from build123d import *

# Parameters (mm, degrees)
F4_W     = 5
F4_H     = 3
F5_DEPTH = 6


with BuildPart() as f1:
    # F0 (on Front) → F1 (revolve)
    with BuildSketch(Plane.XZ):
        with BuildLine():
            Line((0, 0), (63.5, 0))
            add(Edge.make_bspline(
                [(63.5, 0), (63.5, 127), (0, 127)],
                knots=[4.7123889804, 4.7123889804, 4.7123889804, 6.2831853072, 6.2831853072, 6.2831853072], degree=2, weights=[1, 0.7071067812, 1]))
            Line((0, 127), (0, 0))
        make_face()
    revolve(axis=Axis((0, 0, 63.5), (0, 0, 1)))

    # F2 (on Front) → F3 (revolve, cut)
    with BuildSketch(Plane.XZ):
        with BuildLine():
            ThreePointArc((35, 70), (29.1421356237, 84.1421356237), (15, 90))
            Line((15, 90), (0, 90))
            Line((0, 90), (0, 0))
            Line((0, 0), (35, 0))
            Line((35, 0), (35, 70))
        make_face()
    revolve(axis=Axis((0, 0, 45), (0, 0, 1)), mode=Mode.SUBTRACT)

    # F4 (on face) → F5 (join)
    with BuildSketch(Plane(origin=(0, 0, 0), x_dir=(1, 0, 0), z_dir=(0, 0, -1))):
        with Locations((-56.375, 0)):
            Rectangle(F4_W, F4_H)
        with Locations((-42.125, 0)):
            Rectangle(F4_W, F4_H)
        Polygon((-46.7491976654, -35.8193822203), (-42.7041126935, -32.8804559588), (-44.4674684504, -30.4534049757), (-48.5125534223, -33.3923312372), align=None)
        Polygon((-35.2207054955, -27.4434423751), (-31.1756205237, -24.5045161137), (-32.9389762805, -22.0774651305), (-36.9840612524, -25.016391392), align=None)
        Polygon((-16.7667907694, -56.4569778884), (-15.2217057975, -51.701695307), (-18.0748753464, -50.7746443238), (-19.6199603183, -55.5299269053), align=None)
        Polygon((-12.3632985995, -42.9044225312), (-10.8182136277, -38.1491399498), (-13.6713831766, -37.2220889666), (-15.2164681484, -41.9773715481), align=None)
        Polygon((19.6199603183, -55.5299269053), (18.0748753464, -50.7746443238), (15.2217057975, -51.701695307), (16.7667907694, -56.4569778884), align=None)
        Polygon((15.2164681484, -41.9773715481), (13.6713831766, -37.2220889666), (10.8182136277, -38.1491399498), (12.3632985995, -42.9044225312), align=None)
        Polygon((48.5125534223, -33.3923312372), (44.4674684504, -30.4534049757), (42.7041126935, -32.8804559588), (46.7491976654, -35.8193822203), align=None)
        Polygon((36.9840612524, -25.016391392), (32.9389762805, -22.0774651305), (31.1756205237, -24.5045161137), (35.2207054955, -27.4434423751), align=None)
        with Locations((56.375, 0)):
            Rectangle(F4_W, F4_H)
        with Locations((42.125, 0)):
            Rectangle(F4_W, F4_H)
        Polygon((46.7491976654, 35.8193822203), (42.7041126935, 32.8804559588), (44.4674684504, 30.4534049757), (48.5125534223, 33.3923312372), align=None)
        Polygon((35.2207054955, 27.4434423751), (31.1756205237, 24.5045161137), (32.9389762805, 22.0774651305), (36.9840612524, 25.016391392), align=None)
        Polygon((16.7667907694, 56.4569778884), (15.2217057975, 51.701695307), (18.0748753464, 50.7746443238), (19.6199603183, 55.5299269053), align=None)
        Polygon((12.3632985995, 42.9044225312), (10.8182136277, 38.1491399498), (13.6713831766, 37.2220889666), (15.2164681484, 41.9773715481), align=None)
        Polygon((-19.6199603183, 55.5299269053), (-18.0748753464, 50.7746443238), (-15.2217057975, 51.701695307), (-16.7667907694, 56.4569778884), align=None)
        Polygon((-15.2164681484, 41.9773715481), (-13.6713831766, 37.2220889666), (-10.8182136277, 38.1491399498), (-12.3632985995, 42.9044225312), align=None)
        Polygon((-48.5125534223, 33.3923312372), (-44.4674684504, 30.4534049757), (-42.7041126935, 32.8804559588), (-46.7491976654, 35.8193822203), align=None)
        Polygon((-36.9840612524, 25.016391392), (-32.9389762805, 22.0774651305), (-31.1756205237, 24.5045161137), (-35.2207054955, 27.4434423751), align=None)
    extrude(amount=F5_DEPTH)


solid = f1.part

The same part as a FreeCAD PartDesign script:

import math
import FreeCAD as App
import Part
import Sketcher
Q = App.Units.Quantity


def add_polygon(sketch, points):
    """Adds a closed chain of lines whose ends are joined by coincident constraints."""
    first, n = sketch.GeometryCount, len(points)
    for a, b in zip(points, points[1:] + points[:1]):
        sketch.addGeometry(Part.LineSegment(App.Vector(*a, 0), App.Vector(*b, 0)), False)
    for i in range(n):
        sketch.addConstraint(Sketcher.Constraint("Coincident", first + i, 2, first + (i + 1) % n, 1))

doc = App.newDocument("Part")
body = doc.addObject("PartDesign::Body", "Body")

sketch1 = doc.addObject("Sketcher::SketchObject", "Sketch")
body.addObject(sketch1)
sketch1.AttachmentSupport = (doc.XZ_Plane, [""])
sketch1.MapMode = "FlatFace"
sketch1.addGeometry(Part.LineSegment(App.Vector(0, 0, 0), App.Vector(63.5, 0, 0)), False)
sketch1.addGeometry(Part.BSplineCurve([App.Vector(63.5, 0, 0), App.Vector(63.5, 127, 0), App.Vector(0, 127, 0)], [3, 3], [4.71238898, 6.283185307], False, 2, [1, 0.707106781, 1], False), False)
sketch1.addGeometry(Part.LineSegment(App.Vector(0, 127, 0), App.Vector(0, 0, 0)), False)
sketch1.addConstraint(Sketcher.Constraint("Block", 1))
sketch1.addConstraint(Sketcher.Constraint("Coincident", 0, 2, 1, 1))
sketch1.addConstraint(Sketcher.Constraint("Coincident", 1, 2, 2, 1))
sketch1.addConstraint(Sketcher.Constraint("Coincident", 2, 2, 0, 1))
sketch1.addConstraint(Sketcher.Constraint("Horizontal", 0))
sketch1.addConstraint(Sketcher.Constraint("Vertical", 2))
revolution = doc.addObject("PartDesign::Revolution", "Revolution")
body.addObject(revolution)
revolution.Profile = sketch1
revolution.ReferenceAxis = (sketch1, ["V_Axis"])
revolution.Angle = 360

sketch2 = doc.addObject("Sketcher::SketchObject", "Sketch001")
body.addObject(sketch2)
sketch2.AttachmentSupport = (doc.XZ_Plane, [""])
sketch2.MapMode = "FlatFace"
sketch2.addGeometry(Part.ArcOfCircle(Part.Circle(App.Vector(15, 70, 0), App.Vector(0, 0, 1), 20), math.radians(0), math.radians(90)), False)
sketch2.addGeometry(Part.LineSegment(App.Vector(15, 90, 0), App.Vector(0, 90, 0)), False)
sketch2.addGeometry(Part.LineSegment(App.Vector(0, 90, 0), App.Vector(0, 0, 0)), False)
sketch2.addGeometry(Part.LineSegment(App.Vector(0, 0, 0), App.Vector(35, 0, 0)), False)
sketch2.addGeometry(Part.LineSegment(App.Vector(35, 0, 0), App.Vector(35, 70, 0)), False)
sketch2.addConstraint(Sketcher.Constraint("Tangent", 0, 2, 1, 1))
sketch2.addConstraint(Sketcher.Constraint("Coincident", 1, 2, 2, 1))
sketch2.addConstraint(Sketcher.Constraint("Coincident", 2, 2, 3, 1))
sketch2.addConstraint(Sketcher.Constraint("Coincident", 3, 2, 4, 1))
sketch2.addConstraint(Sketcher.Constraint("Tangent", 4, 2, 0, 1))
sketch2.addConstraint(Sketcher.Constraint("Horizontal", 1))
sketch2.addConstraint(Sketcher.Constraint("Vertical", 2))
sketch2.addConstraint(Sketcher.Constraint("Horizontal", 3))
sketch2.addConstraint(Sketcher.Constraint("Vertical", 4))
sketch2.addConstraint(Sketcher.Constraint("Coincident", 2, 2, -1, 1))
sketch2.addConstraint(Sketcher.Constraint("Radius", 0, Q("20 mm")))
sketch2.addConstraint(Sketcher.Constraint("DistanceX", 1, 2, 1, 1, Q("15 mm")))
sketch2.addConstraint(Sketcher.Constraint("DistanceY", 2, 2, 2, 1, Q("90 mm")))
groove = doc.addObject("PartDesign::Groove", "Groove")
body.addObject(groove)
groove.Profile = sketch2
groove.ReferenceAxis = (sketch2, ["V_Axis"])
groove.Angle = 360

sketch3 = doc.addObject("Sketcher::SketchObject", "Sketch002")
body.addObject(sketch3)
sketch3.AttachmentSupport = (doc.XY_Plane, [""])
sketch3.MapMode = "FlatFace"
add_polygon(sketch3, [(-58.9, -1.5), (-58.9, 1.5), (-53.9, 1.5), (-53.9, -1.5)])
add_polygon(sketch3, [(-44.6, -1.5), (-44.6, 1.5), (-39.6, 1.5), (-39.6, -1.5)])
add_polygon(sketch3, [(-46.7, 35.8), (-42.7, 32.9), (-44.5, 30.5), (-48.5, 33.4)])
add_polygon(sketch3, [(-35.2, 27.4), (-31.2, 24.5), (-32.9, 22.1), (-37, 25)])
add_polygon(sketch3, [(-16.8, 56.5), (-15.2, 51.7), (-18.1, 50.8), (-19.6, 55.5)])
add_polygon(sketch3, [(-12.4, 42.9), (-10.8, 38.1), (-13.7, 37.2), (-15.2, 42)])
add_polygon(sketch3, [(19.6, 55.5), (18.1, 50.8), (15.2, 51.7), (16.8, 56.5)])
add_polygon(sketch3, [(15.2, 42), (13.7, 37.2), (10.8, 38.1), (12.4, 42.9)])
add_polygon(sketch3, [(48.5, 33.4), (44.5, 30.5), (42.7, 32.9), (46.7, 35.8)])
add_polygon(sketch3, [(37, 25), (32.9, 22.1), (31.2, 24.5), (35.2, 27.4)])
add_polygon(sketch3, [(53.9, -1.5), (53.9, 1.5), (58.9, 1.5), (58.9, -1.5)])
add_polygon(sketch3, [(39.6, -1.5), (39.6, 1.5), (44.6, 1.5), (44.6, -1.5)])
add_polygon(sketch3, [(46.7, -35.8), (42.7, -32.9), (44.5, -30.5), (48.5, -33.4)])
add_polygon(sketch3, [(35.2, -27.4), (31.2, -24.5), (32.9, -22.1), (37, -25)])
add_polygon(sketch3, [(16.8, -56.5), (15.2, -51.7), (18.1, -50.8), (19.6, -55.5)])
add_polygon(sketch3, [(12.4, -42.9), (10.8, -38.1), (13.7, -37.2), (15.2, -42)])
add_polygon(sketch3, [(-19.6, -55.5), (-18.1, -50.8), (-15.2, -51.7), (-16.8, -56.5)])
add_polygon(sketch3, [(-15.2, -42), (-13.7, -37.2), (-10.8, -38.1), (-12.4, -42.9)])
add_polygon(sketch3, [(-48.5, -33.4), (-44.5, -30.5), (-42.7, -32.9), (-46.7, -35.8)])
add_polygon(sketch3, [(-37, -25), (-32.9, -22.1), (-31.2, -24.5), (-35.2, -27.4)])
sketch3.addConstraint(Sketcher.Constraint("Vertical", 0))
sketch3.addConstraint(Sketcher.Constraint("Horizontal", 1))
sketch3.addConstraint(Sketcher.Constraint("Vertical", 2))
sketch3.addConstraint(Sketcher.Constraint("Horizontal", 3))
sketch3.addConstraint(Sketcher.Constraint("Vertical", 4))
sketch3.addConstraint(Sketcher.Constraint("Horizontal", 5))
sketch3.addConstraint(Sketcher.Constraint("Vertical", 6))
sketch3.addConstraint(Sketcher.Constraint("Horizontal", 7))
sketch3.addConstraint(Sketcher.Constraint("Vertical", 40))
sketch3.addConstraint(Sketcher.Constraint("Horizontal", 41))
sketch3.addConstraint(Sketcher.Constraint("Vertical", 42))
sketch3.addConstraint(Sketcher.Constraint("Horizontal", 43))
sketch3.addConstraint(Sketcher.Constraint("Vertical", 44))
sketch3.addConstraint(Sketcher.Constraint("Horizontal", 45))
sketch3.addConstraint(Sketcher.Constraint("Vertical", 46))
sketch3.addConstraint(Sketcher.Constraint("Horizontal", 47))
sketch3.addConstraint(Sketcher.Constraint("Symmetric", 2, 2, 40, 2, -1, 1))
sketch3.addConstraint(Sketcher.Constraint("Symmetric", 0, 2, 42, 2, -1, 1))
sketch3.addConstraint(Sketcher.Constraint("Symmetric", 6, 2, 44, 2, -1, 1))
sketch3.addConstraint(Sketcher.Constraint("Symmetric", 4, 2, 46, 2, -1, 1))
sketch3.addConstraint(Sketcher.Constraint("Symmetric", 8, 2, 48, 2, -1, 1))
sketch3.addConstraint(Sketcher.Constraint("Symmetric", 9, 2, 49, 2, -1, 1))
sketch3.addConstraint(Sketcher.Constraint("Symmetric", 10, 2, 50, 2, -1, 1))
sketch3.addConstraint(Sketcher.Constraint("Symmetric", 11, 2, 51, 2, -1, 1))
sketch3.addConstraint(Sketcher.Constraint("Symmetric", 12, 2, 52, 2, -1, 1))
sketch3.addConstraint(Sketcher.Constraint("Symmetric", 13, 2, 53, 2, -1, 1))
sketch3.addConstraint(Sketcher.Constraint("Symmetric", 14, 2, 54, 2, -1, 1))
sketch3.addConstraint(Sketcher.Constraint("Symmetric", 15, 2, 55, 2, -1, 1))
sketch3.addConstraint(Sketcher.Constraint("Symmetric", 16, 2, 56, 2, -1, 1))
sketch3.addConstraint(Sketcher.Constraint("Symmetric", 17, 2, 57, 2, -1, 1))
sketch3.addConstraint(Sketcher.Constraint("Symmetric", 18, 2, 58, 2, -1, 1))
sketch3.addConstraint(Sketcher.Constraint("Symmetric", 19, 2, 59, 2, -1, 1))
sketch3.addConstraint(Sketcher.Constraint("Symmetric", 20, 2, 60, 2, -1, 1))
sketch3.addConstraint(Sketcher.Constraint("Symmetric", 21, 2, 61, 2, -1, 1))
sketch3.addConstraint(Sketcher.Constraint("Symmetric", 22, 2, 62, 2, -1, 1))
sketch3.addConstraint(Sketcher.Constraint("Symmetric", 23, 2, 63, 2, -1, 1))
sketch3.addConstraint(Sketcher.Constraint("Symmetric", 24, 2, 64, 2, -1, 1))
sketch3.addConstraint(Sketcher.Constraint("Symmetric", 25, 2, 65, 2, -1, 1))
sketch3.addConstraint(Sketcher.Constraint("Symmetric", 26, 2, 66, 2, -1, 1))
sketch3.addConstraint(Sketcher.Constraint("Symmetric", 27, 2, 67, 2, -1, 1))
sketch3.addConstraint(Sketcher.Constraint("Symmetric", 28, 2, 68, 2, -1, 1))
sketch3.addConstraint(Sketcher.Constraint("Symmetric", 29, 2, 69, 2, -1, 1))
sketch3.addConstraint(Sketcher.Constraint("Symmetric", 30, 2, 70, 2, -1, 1))
sketch3.addConstraint(Sketcher.Constraint("Symmetric", 31, 2, 71, 2, -1, 1))
sketch3.addConstraint(Sketcher.Constraint("Symmetric", 32, 2, 72, 2, -1, 1))
sketch3.addConstraint(Sketcher.Constraint("Symmetric", 33, 2, 73, 2, -1, 1))
sketch3.addConstraint(Sketcher.Constraint("Symmetric", 34, 2, 74, 2, -1, 1))
sketch3.addConstraint(Sketcher.Constraint("Symmetric", 35, 2, 75, 2, -1, 1))
sketch3.addConstraint(Sketcher.Constraint("Symmetric", 36, 2, 76, 2, -1, 1))
sketch3.addConstraint(Sketcher.Constraint("Symmetric", 37, 2, 77, 2, -1, 1))
sketch3.addConstraint(Sketcher.Constraint("Symmetric", 38, 2, 78, 2, -1, 1))
sketch3.addConstraint(Sketcher.Constraint("Symmetric", 39, 2, 79, 2, -1, 1))
sketch3.addConstraint(Sketcher.Constraint("Symmetric", 17, 2, 24, 2, -2))
sketch3.addConstraint(Sketcher.Constraint("Symmetric", 16, 2, 25, 2, -2))
sketch3.addConstraint(Sketcher.Constraint("Symmetric", 19, 2, 26, 2, -2))
sketch3.addConstraint(Sketcher.Constraint("Symmetric", 18, 2, 27, 2, -2))
sketch3.addConstraint(Sketcher.Constraint("Symmetric", 21, 2, 28, 2, -2))
sketch3.addConstraint(Sketcher.Constraint("Symmetric", 20, 2, 29, 2, -2))
sketch3.addConstraint(Sketcher.Constraint("Symmetric", 23, 2, 30, 2, -2))
sketch3.addConstraint(Sketcher.Constraint("Symmetric", 22, 2, 31, 2, -2))
sketch3.addConstraint(Sketcher.Constraint("Symmetric", 9, 2, 32, 2, -2))
sketch3.addConstraint(Sketcher.Constraint("Symmetric", 8, 2, 33, 2, -2))
sketch3.addConstraint(Sketcher.Constraint("Symmetric", 11, 2, 34, 2, -2))
sketch3.addConstraint(Sketcher.Constraint("Symmetric", 10, 2, 35, 2, -2))
sketch3.addConstraint(Sketcher.Constraint("Symmetric", 13, 2, 36, 2, -2))
sketch3.addConstraint(Sketcher.Constraint("Symmetric", 12, 2, 37, 2, -2))
sketch3.addConstraint(Sketcher.Constraint("Symmetric", 15, 2, 38, 2, -2))
sketch3.addConstraint(Sketcher.Constraint("Symmetric", 14, 2, 39, 2, -2))
sketch3.addConstraint(Sketcher.Constraint("Perpendicular", 8, 9))
sketch3.addConstraint(Sketcher.Constraint("Perpendicular", 9, 10))
sketch3.addConstraint(Sketcher.Constraint("Perpendicular", 10, 11))
sketch3.addConstraint(Sketcher.Constraint("Perpendicular", 11, 12))
sketch3.addConstraint(Sketcher.Constraint("Perpendicular", 12, 13))
sketch3.addConstraint(Sketcher.Constraint("Perpendicular", 13, 14))
sketch3.addConstraint(Sketcher.Constraint("Perpendicular", 14, 15))
sketch3.addConstraint(Sketcher.Constraint("Perpendicular", 16, 17))
sketch3.addConstraint(Sketcher.Constraint("Perpendicular", 17, 18))
sketch3.addConstraint(Sketcher.Constraint("Perpendicular", 18, 19))
sketch3.addConstraint(Sketcher.Constraint("Perpendicular", 19, 20))
sketch3.addConstraint(Sketcher.Constraint("Perpendicular", 20, 21))
sketch3.addConstraint(Sketcher.Constraint("Perpendicular", 21, 22))
sketch3.addConstraint(Sketcher.Constraint("Perpendicular", 22, 23))
sketch3.addConstraint(Sketcher.Constraint("Horizontal", 1, 2, 4, 2))
sketch3.addConstraint(Sketcher.Constraint("Horizontal", 3, 2, 6, 2))
sketch3.addConstraint(Sketcher.Constraint("Horizontal", 5, 2, 40, 2))
sketch3.addConstraint(Sketcher.Constraint("Equal", 3, 5))
sketch3.addConstraint(Sketcher.Constraint("Equal", 10, 12))
sketch3.addConstraint(Sketcher.Constraint("Equal", 11, 13))
sketch3.addConstraint(Sketcher.Constraint("Equal", 14, 16))
sketch3.addConstraint(Sketcher.Constraint("Equal", 15, 17))
sketch3.addConstraint(Sketcher.Constraint("Equal", 18, 20))
sketch3.addConstraint(Sketcher.Constraint("Equal", 19, 21))
sketch3.addConstraint(Sketcher.Constraint("DistanceX", 1, 1, 1, 2, Q("5 mm")))
sketch3.addConstraint(Sketcher.Constraint("DistanceY", 0, 1, 0, 2, Q("3 mm")))
sketch3.addConstraint(Sketcher.Constraint("Angle", 8, Q("-36 deg")))
sketch3.addConstraint(Sketcher.Constraint("Angle", 16, Q("-72 deg")))
sketch3.addConstraint(Sketcher.Constraint("Distance", 8, Q("5 mm")))
sketch3.addConstraint(Sketcher.Constraint("Distance", 9, Q("3 mm")))
sketch3.addConstraint(Sketcher.Constraint("DistanceX", 0, 2, -1, 1, Q("58.875 mm")))
sketch3.addConstraint(Sketcher.Constraint("DistanceX", 4, 2, -1, 1, Q("44.625 mm")))
sketch3.addConstraint(Sketcher.Constraint("DistanceX", 23, 2, -1, 1, Q("12.363299 mm")))
sketch3.addConstraint(Sketcher.Constraint("DistanceX", 9, 2, -1, 1, Q("44.467468 mm")))
sketch3.addConstraint(Sketcher.Constraint("DistanceY", -1, 1, 10, 2, Q("33.392331 mm")))
sketch3.addConstraint(Sketcher.Constraint("DistanceX", 12, 2, -1, 1, Q("31.175621 mm")))
sketch3.addConstraint(Sketcher.Constraint("DistanceY", -1, 1, 14, 2, Q("25.016391 mm")))
sketch3.addConstraint(Sketcher.Constraint("DistanceX", 18, 2, -1, 1, Q("19.61996 mm")))
sketch3.addConstraint(Sketcher.Constraint("DistanceY", -1, 1, 20, 2, Q("38.14914 mm")))
sketch3.addConstraint(Sketcher.Constraint("DistanceY", -1, 1, 16, 2, Q("51.701695 mm")))
pad1 = doc.addObject("PartDesign::Pad", "Pad")
body.addObject(pad1)
pad1.Profile = sketch3
pad1.Length = 6
pad1.Reversed = True

doc.recompute()
